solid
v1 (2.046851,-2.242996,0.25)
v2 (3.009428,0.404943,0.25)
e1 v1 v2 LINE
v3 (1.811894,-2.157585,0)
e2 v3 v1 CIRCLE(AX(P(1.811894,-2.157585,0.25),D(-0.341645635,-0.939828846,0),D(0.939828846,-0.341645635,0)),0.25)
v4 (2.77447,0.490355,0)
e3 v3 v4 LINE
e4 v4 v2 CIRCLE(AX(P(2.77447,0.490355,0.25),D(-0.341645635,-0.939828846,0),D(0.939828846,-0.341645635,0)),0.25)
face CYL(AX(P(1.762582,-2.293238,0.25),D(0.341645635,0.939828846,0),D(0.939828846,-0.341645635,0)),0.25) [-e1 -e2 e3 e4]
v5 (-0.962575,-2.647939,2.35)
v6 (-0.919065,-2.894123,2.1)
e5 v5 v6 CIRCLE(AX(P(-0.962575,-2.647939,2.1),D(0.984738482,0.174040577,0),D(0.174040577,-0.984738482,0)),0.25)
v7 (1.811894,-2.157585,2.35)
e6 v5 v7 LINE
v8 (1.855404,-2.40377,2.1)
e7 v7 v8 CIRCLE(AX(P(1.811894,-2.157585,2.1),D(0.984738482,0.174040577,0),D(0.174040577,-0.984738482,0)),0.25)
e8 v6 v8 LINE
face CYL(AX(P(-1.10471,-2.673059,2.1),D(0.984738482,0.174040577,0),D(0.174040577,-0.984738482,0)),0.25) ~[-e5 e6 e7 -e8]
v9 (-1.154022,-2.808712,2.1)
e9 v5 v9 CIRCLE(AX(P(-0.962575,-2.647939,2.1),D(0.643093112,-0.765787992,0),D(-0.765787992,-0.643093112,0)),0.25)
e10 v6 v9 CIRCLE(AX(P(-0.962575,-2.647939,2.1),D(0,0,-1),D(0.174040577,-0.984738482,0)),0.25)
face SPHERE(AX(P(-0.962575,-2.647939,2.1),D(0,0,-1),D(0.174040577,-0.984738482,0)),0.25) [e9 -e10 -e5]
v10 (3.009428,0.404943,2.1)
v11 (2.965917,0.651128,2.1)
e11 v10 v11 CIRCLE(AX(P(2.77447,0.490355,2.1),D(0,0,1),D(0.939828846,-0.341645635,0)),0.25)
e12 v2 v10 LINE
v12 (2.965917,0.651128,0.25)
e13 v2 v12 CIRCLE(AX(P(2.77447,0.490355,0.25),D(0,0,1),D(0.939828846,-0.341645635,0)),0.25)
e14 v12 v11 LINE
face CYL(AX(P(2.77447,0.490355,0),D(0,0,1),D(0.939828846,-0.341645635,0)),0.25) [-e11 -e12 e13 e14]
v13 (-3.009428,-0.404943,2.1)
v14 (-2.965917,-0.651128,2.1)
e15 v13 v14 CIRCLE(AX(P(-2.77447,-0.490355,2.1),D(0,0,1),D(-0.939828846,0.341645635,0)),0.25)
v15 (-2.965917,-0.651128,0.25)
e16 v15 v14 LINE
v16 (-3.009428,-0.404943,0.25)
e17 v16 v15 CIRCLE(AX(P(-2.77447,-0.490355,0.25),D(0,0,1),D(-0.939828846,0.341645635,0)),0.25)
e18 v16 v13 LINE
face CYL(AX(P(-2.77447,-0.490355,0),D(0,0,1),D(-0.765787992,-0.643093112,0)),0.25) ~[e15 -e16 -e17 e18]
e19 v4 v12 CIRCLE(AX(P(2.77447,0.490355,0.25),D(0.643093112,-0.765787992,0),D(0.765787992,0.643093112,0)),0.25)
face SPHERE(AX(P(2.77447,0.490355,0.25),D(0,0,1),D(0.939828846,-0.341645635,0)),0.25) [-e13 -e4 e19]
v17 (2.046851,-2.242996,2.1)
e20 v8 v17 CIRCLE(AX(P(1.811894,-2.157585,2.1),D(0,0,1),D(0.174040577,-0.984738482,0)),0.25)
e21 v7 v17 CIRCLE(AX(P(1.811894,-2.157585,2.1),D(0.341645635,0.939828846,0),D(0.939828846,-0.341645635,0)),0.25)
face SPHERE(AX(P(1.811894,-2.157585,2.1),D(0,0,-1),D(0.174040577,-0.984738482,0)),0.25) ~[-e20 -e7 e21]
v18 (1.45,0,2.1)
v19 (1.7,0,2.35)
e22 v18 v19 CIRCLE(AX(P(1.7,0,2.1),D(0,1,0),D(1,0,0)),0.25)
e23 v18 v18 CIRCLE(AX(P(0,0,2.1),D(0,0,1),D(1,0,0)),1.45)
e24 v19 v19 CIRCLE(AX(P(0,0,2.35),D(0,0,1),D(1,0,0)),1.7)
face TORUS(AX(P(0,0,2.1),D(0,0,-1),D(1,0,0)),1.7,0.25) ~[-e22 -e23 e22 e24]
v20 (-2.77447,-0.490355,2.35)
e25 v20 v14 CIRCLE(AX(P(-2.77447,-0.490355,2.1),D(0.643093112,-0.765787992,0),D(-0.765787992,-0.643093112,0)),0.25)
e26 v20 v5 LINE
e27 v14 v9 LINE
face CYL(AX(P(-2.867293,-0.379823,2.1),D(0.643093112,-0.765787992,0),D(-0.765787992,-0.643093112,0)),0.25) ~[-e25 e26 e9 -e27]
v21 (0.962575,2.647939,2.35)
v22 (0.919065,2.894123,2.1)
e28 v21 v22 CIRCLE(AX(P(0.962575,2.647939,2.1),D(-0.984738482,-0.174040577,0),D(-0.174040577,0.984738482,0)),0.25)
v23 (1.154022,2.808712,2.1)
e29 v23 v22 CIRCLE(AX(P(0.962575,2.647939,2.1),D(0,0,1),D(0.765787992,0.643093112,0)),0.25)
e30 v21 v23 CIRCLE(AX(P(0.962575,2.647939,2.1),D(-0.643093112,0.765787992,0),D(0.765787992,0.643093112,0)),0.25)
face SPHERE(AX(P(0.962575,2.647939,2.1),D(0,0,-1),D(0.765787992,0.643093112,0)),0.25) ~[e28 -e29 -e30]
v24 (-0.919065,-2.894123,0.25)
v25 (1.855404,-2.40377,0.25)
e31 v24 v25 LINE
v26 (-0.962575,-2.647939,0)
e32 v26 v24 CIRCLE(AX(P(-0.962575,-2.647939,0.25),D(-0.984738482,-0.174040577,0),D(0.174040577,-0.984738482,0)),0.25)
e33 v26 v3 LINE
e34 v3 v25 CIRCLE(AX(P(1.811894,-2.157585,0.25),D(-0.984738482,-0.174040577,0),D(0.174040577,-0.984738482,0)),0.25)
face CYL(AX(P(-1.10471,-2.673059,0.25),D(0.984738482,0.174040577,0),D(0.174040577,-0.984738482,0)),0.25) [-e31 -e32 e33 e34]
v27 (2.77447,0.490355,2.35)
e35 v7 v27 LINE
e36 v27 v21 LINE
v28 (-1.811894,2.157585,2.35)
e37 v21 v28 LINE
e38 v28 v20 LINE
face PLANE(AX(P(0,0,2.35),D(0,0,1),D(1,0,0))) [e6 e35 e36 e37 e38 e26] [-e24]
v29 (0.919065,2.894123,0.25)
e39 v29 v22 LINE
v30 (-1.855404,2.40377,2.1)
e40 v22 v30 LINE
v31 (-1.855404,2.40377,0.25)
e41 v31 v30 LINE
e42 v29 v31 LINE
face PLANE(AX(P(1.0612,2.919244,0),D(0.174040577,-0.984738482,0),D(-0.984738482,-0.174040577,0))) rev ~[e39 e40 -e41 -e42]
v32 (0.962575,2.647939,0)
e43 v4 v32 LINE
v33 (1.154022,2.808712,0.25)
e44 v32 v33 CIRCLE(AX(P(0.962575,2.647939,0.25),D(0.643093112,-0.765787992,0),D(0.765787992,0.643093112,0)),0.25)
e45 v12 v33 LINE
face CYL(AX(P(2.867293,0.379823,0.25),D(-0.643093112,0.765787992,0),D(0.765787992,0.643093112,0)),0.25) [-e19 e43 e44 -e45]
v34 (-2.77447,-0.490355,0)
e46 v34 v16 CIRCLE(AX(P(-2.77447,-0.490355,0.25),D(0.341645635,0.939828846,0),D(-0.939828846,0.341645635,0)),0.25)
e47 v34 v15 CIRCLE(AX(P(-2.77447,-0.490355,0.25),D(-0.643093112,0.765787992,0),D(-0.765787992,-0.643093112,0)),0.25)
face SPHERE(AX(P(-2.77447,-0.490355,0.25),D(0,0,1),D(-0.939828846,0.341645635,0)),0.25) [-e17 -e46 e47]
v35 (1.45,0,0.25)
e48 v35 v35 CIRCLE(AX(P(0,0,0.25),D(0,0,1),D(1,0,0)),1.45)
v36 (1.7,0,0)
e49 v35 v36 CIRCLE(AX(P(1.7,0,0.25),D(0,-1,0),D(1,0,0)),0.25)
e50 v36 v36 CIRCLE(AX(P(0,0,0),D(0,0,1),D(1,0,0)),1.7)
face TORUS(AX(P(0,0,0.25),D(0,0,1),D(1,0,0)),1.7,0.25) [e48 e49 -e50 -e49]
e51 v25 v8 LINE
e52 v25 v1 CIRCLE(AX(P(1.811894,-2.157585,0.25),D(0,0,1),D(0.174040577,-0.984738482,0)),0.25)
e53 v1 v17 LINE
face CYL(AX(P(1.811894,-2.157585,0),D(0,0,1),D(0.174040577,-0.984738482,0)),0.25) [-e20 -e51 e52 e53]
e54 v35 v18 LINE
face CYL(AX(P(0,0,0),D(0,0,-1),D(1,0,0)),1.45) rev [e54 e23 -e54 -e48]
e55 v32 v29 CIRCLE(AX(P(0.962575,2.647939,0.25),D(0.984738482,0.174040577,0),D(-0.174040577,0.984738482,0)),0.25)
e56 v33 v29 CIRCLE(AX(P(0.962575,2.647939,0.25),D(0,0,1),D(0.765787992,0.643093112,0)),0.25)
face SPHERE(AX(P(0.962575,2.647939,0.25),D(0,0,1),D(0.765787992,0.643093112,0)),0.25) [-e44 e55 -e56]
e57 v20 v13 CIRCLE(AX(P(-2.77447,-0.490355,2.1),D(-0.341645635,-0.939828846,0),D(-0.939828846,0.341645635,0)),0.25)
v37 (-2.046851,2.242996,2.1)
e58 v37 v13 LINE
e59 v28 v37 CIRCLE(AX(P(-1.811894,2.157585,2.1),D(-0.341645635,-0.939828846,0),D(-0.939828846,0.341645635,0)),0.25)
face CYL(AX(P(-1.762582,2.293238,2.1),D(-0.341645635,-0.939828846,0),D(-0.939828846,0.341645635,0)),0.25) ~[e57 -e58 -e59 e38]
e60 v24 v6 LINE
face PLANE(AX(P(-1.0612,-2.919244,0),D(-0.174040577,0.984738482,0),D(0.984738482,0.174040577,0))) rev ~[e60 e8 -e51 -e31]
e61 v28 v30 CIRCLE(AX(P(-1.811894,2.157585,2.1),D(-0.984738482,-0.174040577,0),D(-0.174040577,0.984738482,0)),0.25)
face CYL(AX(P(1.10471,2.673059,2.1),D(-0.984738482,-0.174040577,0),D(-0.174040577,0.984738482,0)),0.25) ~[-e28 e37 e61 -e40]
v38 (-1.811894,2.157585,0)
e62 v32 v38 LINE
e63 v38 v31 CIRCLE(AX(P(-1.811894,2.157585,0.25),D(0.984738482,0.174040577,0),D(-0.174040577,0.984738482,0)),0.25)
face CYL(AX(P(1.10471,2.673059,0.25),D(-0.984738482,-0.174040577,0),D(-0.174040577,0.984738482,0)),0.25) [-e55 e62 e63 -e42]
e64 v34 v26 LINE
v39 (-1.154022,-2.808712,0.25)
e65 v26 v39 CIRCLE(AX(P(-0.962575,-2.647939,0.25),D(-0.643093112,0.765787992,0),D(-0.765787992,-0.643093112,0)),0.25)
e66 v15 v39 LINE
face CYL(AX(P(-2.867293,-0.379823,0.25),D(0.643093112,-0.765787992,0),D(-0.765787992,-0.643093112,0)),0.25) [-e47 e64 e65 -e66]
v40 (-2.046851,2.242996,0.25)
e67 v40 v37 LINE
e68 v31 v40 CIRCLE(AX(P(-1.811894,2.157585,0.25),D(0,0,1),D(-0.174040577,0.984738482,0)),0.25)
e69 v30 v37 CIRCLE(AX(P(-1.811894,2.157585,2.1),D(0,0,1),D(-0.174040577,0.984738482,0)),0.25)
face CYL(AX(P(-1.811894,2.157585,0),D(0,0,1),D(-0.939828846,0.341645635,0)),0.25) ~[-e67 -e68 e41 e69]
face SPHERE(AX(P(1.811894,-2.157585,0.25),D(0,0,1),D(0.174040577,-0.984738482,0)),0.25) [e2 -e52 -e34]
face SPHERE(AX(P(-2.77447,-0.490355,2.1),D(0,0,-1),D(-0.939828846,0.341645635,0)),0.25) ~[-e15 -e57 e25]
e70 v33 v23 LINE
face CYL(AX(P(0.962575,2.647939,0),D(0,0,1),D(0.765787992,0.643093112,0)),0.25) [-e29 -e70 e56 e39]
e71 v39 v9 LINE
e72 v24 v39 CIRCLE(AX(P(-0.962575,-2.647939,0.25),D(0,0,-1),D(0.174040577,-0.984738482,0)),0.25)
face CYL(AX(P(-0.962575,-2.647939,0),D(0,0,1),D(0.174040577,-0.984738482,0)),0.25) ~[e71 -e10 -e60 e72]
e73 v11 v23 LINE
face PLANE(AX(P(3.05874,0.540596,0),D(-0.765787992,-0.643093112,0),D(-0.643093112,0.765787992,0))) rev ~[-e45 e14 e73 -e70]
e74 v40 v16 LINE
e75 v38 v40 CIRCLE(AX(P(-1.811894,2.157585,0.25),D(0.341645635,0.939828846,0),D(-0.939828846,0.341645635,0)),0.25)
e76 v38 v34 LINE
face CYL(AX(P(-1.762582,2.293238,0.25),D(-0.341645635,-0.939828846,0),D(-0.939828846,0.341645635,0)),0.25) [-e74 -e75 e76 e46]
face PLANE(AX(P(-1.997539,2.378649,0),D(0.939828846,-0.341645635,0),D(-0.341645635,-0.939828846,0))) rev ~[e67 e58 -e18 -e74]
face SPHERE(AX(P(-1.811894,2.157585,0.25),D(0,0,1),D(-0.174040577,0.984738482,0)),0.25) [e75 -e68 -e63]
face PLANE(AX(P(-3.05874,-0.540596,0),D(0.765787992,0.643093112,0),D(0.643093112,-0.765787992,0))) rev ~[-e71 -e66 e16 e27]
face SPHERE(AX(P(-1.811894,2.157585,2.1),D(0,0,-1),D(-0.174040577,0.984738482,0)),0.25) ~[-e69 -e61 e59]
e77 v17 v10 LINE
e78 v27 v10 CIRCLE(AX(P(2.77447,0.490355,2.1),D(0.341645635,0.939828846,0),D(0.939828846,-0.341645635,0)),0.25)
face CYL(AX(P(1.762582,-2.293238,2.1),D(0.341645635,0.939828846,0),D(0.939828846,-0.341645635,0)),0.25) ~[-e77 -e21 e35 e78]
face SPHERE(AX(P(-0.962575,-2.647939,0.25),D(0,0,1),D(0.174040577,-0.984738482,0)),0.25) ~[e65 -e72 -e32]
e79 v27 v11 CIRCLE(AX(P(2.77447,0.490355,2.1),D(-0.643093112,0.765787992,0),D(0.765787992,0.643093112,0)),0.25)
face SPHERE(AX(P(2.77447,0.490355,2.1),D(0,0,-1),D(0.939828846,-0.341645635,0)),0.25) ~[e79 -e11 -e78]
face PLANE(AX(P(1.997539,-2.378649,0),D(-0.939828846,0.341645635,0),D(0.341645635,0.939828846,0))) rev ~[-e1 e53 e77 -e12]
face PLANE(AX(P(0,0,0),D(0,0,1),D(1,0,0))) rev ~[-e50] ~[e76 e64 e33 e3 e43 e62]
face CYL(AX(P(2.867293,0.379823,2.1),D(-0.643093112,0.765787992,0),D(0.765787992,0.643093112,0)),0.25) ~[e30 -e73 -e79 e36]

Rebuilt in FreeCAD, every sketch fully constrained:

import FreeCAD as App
import Part
import Sketcher
Q = App.Units.Quantity

doc = App.newDocument("Part")
params = doc.addObject("Spreadsheet::Sheet", "Params")
for row, (alias, value) in enumerate([
    ("sketch1_diameter", "2.9 mm"),
    ("pad1_length", "2.35 mm"),
    ("fillet_radius", "0.25 mm"),
], start=1):
    params.set(f"A{row}", alias)
    params.set(f"B{row}", "=" + value)
    params.setAlias(f"B{row}", alias)

body = doc.addObject("PartDesign::Body", "Body")

# Sketch on XY plane
sketch1 = body.newObject("Sketcher::SketchObject", "Sketch")
sketch1.AttachmentSupport = (doc.getObject("XY_Plane"), [""])
sketch1.MapMode = "FlatFace"
sketch1.addGeometry([
    Part.LineSegment(App.Vector(-1.0612, -2.919244, 0), App.Vector(1.997539, -2.378649, 0)),  # 0
    Part.LineSegment(App.Vector(1.997539, -2.378649, 0), App.Vector(3.05874, 0.540596, 0)),  # 1
    Part.LineSegment(App.Vector(3.05874, 0.540596, 0), App.Vector(1.0612, 2.919244, 0)),  # 2
    Part.LineSegment(App.Vector(1.0612, 2.919244, 0), App.Vector(-1.997539, 2.378649, 0)),  # 3
    Part.LineSegment(App.Vector(-1.997539, 2.378649, 0), App.Vector(-3.05874, -0.540596, 0)),  # 4
    Part.LineSegment(App.Vector(-3.05874, -0.540596, 0), App.Vector(-1.0612, -2.919244, 0)),  # 5
    Part.Circle(App.Vector(0, 0, 0), App.Vector(0, 0, 1), 1.45),  # 6
], False)
sketch1.addConstraint([
    Sketcher.Constraint("Coincident", 0, 2, 1, 1),
    Sketcher.Constraint("Coincident", 1, 2, 2, 1),
    Sketcher.Constraint("Coincident", 2, 2, 3, 1),
    Sketcher.Constraint("Coincident", 3, 2, 4, 1),
    Sketcher.Constraint("Coincident", 4, 2, 5, 1),
    Sketcher.Constraint("Coincident", 5, 2, 0, 1),
    Sketcher.Constraint("Coincident", 6, 3, -1, 1),
    Sketcher.Constraint("Symmetric", 0, 2, 3, 2, -1, 1),
    Sketcher.Constraint("Symmetric", 1, 2, 4, 2, -1, 1),
    Sketcher.Constraint("Symmetric", 2, 2, 5, 2, -1, 1),
    Sketcher.Constraint("Equal", 0, 1),
    Sketcher.Constraint("Equal", 1, 2),
    Sketcher.Constraint("Diameter", 6, Q("2.9 mm")),
    Sketcher.Constraint("DistanceX", -1, 1, 2, 2, Q("1.0612 mm")),
    Sketcher.Constraint("DistanceX", 0, 2, 1, 2, Q("1.061201 mm")),
    Sketcher.Constraint("DistanceX", -1, 1, 0, 2, Q("1.997539 mm")),
    Sketcher.Constraint("DistanceY", 0, 2, -1, 1, Q("2.378649 mm")),
])
sketch1.setExpression("Constraints[12]", "Params.sketch1_diameter")
pad1 = body.newObject("PartDesign::Pad", "Pad")
pad1.Profile = sketch1
pad1.setExpression("Length", "Params.pad1_length")
doc.recompute()

fillet = body.newObject("PartDesign::Fillet", "Fillet")
fillet.Base = (pad1, ["Edge1"])
fillet.UseAllEdges = True
fillet.setExpression("Radius", "Params.fillet_radius")

doc.recompute()
